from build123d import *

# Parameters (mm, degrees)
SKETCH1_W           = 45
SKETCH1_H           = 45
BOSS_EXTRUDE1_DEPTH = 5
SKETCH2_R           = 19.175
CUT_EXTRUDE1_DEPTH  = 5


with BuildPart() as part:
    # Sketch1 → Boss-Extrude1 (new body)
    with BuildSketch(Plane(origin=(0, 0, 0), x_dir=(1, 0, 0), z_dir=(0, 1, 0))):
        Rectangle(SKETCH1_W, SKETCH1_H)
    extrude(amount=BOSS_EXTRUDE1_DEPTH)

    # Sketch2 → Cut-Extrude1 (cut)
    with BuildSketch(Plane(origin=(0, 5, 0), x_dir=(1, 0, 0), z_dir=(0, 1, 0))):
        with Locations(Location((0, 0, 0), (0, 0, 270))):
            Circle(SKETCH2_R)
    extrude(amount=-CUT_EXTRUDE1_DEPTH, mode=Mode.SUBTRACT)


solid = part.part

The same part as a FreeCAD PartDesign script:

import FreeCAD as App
import Part
import Sketcher
Q = App.Units.Quantity


def add_polygon(sketch, points):
    """Adds a closed chain of lines whose ends are joined by coincident constraints."""
    first, n = sketch.GeometryCount, len(points)
    for a, b in zip(points, points[1:] + points[:1]):
        sketch.addGeometry(Part.LineSegment(App.Vector(*a, 0), App.Vector(*b, 0)), False)
    for i in range(n):
        sketch.addConstraint(Sketcher.Constraint("Coincident", first + i, 2, first + (i + 1) % n, 1))

doc = App.newDocument("Part")
params = doc.addObject("Spreadsheet::Sheet", "Params")
for row, (alias, value) in enumerate([
    ("sketch1_width", "45 mm"),
    ("pad1_length", "5 mm"),
    ("sketch2_diameter", "38.35 mm"),
    ("pocket1_length", "5 mm"),
], start=1):
    params.set(f"A{row}", alias)
    params.set(f"B{row}", "=" + value)
    params.setAlias(f"B{row}", alias)

body = doc.addObject("PartDesign::Body", "Body")

# Sketch on XZ plane
sketch1 = body.newObject("Sketcher::SketchObject", "Sketch")
sketch1.AttachmentSupport = (doc.getObject("XZ_Plane"), [""])
sketch1.MapMode = "FlatFace"
add_polygon(sketch1, [(-22, -22), (-22, 22), (22, 22), (22, -22)])  # lines 0-3
sketch1.addConstraint(Sketcher.Constraint("Vertical", 0))
sketch1.addConstraint(Sketcher.Constraint("Horizontal", 1))
sketch1.addConstraint(Sketcher.Constraint("Vertical", 2))
sketch1.addConstraint(Sketcher.Constraint("Horizontal", 3))
sketch1.addConstraint(Sketcher.Constraint("Symmetric", 0, 2, 2, 2, -1, 1))
sketch1.addConstraint(Sketcher.Constraint("Equal", 3, 0))
sketch1.addConstraint(Sketcher.Constraint("DistanceX", 1, 1, 1, 2, Q("45 mm")))
sketch1.setExpression("Constraints[10]", "Params.sketch1_width")
pad1 = body.newObject("PartDesign::Pad", "Pad")
pad1.Profile = sketch1
pad1.setExpression("Length", "Params.pad1_length")
pad1.Reversed = True

# Sketch on XZ plane
sketch2 = body.newObject("Sketcher::SketchObject", "Sketch001")
sketch2.AttachmentSupport = (doc.getObject("XZ_Plane"), [""])
sketch2.MapMode = "FlatFace"
sketch2.AttachmentOffset = App.Placement(App.Vector(0, 0, -5), App.Rotation())
sketch2.addGeometry(Part.Circle(App.Vector(0, 0, 0), App.Vector(0, 0, 1), 19), False)
sketch2.addConstraint(Sketcher.Constraint("Coincident", 0, 3, -1, 1))
sketch2.addConstraint(Sketcher.Constraint("Diameter", 0, Q("38.35 mm")))
sketch2.setExpression("Constraints[1]", "Params.sketch2_diameter")
pocket1 = body.newObject("PartDesign::Pocket", "Pocket")
pocket1.Profile = sketch2
pocket1.setExpression("Length", "Params.pocket1_length")
pocket1.Reversed = True

doc.recompute()
